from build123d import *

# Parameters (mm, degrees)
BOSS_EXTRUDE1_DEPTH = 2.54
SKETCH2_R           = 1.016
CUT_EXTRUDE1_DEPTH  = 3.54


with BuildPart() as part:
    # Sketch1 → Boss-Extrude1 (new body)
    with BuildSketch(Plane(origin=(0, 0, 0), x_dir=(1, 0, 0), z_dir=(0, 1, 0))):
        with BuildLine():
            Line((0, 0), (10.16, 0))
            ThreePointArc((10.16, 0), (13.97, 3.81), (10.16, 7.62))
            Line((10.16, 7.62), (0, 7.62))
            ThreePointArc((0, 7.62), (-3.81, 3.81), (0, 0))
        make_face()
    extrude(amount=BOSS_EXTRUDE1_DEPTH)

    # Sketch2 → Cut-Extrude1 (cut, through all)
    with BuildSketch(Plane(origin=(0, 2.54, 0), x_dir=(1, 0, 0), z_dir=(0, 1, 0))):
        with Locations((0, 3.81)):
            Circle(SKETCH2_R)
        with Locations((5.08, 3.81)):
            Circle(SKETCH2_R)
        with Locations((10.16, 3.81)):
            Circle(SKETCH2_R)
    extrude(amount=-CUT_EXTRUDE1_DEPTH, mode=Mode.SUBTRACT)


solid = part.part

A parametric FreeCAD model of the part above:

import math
import FreeCAD as App
import Part
import Sketcher
Q = App.Units.Quantity

doc = App.newDocument("Part")
params = doc.addObject("Spreadsheet::Sheet", "Params")
for row, (alias, value) in enumerate([
    ("sketch1_radius", "0.15 in"),
    ("sketch1_width", "0.4 in"),
    ("pad1_length", "0.1 in"),
    ("sketch2_diameter", "0.08 in"),
], start=1):
    params.set(f"A{row}", alias)
    params.set(f"B{row}", "=" + value)
    params.setAlias(f"B{row}", alias)

body = doc.addObject("PartDesign::Body", "Body")

# Sketch on XZ plane
sketch1 = body.newObject("Sketcher::SketchObject", "Sketch")
sketch1.AttachmentSupport = (doc.getObject("XZ_Plane"), [""])
sketch1.MapMode = "FlatFace"
sketch1.addGeometry([
    Part.LineSegment(App.Vector(0, 0, 0), App.Vector(10.2, 0, 0)),
    Part.ArcOfCircle(Part.Circle(App.Vector(10.2, -3.8, 0), App.Vector(0, 0, 1), 3.8), math.radians(-90), math.radians(90)),
    Part.LineSegment(App.Vector(10.2, -7.6, 0), App.Vector(0, -7.6, 0)),
    Part.ArcOfCircle(Part.Circle(App.Vector(0, -3.8, 0), App.Vector(0, 0, 1), 3.8), math.radians(90), math.radians(270)),
], False)
sketch1.addConstraint([
    Sketcher.Constraint("Tangent", 0, 2, 1, 2),
    Sketcher.Constraint("Tangent", 1, 1, 2, 1),
    Sketcher.Constraint("Tangent", 2, 2, 3, 2),
    Sketcher.Constraint("Tangent", 3, 1, 0, 1),
    Sketcher.Constraint("Horizontal", 0),
    Sketcher.Constraint("Horizontal", 2),
    Sketcher.Constraint("Coincident", 3, 1, -1, 1),
    Sketcher.Constraint("Radius", 1, Q("0.15 in")),
    Sketcher.Constraint("DistanceX", 0, 1, 0, 2, Q("0.4 in")),
])
sketch1.setExpression("Constraints[7]", "Params.sketch1_radius")
sketch1.setExpression("Constraints[8]", "Params.sketch1_width")
pad1 = body.newObject("PartDesign::Pad", "Pad")
pad1.Profile = sketch1
pad1.setExpression("Length", "Params.pad1_length")
pad1.Reversed = True

# Sketch on XZ plane
sketch2 = body.newObject("Sketcher::SketchObject", "Sketch001")
sketch2.AttachmentSupport = (doc.getObject("XZ_Plane"), [""])
sketch2.MapMode = "FlatFace"
sketch2.AttachmentOffset = App.Placement(App.Vector(0, 0, -0.1 * 25.4), App.Rotation())
sketch2.addGeometry([
    Part.Circle(App.Vector(0, -3.8, 0), App.Vector(0, 0, 1), 1),
    Part.Circle(App.Vector(5.1, -3.8, 0), App.Vector(0, 0, 1), 1),
    Part.Circle(App.Vector(10.2, -3.8, 0), App.Vector(0, 0, 1), 1),
], False)
sketch2.addConstraint([
    Sketcher.Constraint("Equal", 0, 1),
    Sketcher.Constraint("Equal", 1, 2),
    Sketcher.Constraint("PointOnObject", 0, 3, -2),
    Sketcher.Constraint("Horizontal", 0, 3, 1, 3),
    Sketcher.Constraint("Horizontal", 1, 3, 2, 3),
    Sketcher.Constraint("Diameter", 0, Q("0.08 in")),
    Sketcher.Constraint("DistanceX", -1, 1, 1, 3, Q("0.2 in")),
    Sketcher.Constraint("DistanceX", -1, 1, 2, 3, Q("0.4 in")),
    Sketcher.Constraint("DistanceY", 0, 3, -1, 1, Q("0.15 in")),
])
sketch2.setExpression("Constraints[5]", "Params.sketch2_diameter")
pocket1 = body.newObject("PartDesign::Pocket", "Pocket")
pocket1.Profile = sketch2
pocket1.Type = "ThroughAll"
pocket1.Reversed = True

doc.recompute()
